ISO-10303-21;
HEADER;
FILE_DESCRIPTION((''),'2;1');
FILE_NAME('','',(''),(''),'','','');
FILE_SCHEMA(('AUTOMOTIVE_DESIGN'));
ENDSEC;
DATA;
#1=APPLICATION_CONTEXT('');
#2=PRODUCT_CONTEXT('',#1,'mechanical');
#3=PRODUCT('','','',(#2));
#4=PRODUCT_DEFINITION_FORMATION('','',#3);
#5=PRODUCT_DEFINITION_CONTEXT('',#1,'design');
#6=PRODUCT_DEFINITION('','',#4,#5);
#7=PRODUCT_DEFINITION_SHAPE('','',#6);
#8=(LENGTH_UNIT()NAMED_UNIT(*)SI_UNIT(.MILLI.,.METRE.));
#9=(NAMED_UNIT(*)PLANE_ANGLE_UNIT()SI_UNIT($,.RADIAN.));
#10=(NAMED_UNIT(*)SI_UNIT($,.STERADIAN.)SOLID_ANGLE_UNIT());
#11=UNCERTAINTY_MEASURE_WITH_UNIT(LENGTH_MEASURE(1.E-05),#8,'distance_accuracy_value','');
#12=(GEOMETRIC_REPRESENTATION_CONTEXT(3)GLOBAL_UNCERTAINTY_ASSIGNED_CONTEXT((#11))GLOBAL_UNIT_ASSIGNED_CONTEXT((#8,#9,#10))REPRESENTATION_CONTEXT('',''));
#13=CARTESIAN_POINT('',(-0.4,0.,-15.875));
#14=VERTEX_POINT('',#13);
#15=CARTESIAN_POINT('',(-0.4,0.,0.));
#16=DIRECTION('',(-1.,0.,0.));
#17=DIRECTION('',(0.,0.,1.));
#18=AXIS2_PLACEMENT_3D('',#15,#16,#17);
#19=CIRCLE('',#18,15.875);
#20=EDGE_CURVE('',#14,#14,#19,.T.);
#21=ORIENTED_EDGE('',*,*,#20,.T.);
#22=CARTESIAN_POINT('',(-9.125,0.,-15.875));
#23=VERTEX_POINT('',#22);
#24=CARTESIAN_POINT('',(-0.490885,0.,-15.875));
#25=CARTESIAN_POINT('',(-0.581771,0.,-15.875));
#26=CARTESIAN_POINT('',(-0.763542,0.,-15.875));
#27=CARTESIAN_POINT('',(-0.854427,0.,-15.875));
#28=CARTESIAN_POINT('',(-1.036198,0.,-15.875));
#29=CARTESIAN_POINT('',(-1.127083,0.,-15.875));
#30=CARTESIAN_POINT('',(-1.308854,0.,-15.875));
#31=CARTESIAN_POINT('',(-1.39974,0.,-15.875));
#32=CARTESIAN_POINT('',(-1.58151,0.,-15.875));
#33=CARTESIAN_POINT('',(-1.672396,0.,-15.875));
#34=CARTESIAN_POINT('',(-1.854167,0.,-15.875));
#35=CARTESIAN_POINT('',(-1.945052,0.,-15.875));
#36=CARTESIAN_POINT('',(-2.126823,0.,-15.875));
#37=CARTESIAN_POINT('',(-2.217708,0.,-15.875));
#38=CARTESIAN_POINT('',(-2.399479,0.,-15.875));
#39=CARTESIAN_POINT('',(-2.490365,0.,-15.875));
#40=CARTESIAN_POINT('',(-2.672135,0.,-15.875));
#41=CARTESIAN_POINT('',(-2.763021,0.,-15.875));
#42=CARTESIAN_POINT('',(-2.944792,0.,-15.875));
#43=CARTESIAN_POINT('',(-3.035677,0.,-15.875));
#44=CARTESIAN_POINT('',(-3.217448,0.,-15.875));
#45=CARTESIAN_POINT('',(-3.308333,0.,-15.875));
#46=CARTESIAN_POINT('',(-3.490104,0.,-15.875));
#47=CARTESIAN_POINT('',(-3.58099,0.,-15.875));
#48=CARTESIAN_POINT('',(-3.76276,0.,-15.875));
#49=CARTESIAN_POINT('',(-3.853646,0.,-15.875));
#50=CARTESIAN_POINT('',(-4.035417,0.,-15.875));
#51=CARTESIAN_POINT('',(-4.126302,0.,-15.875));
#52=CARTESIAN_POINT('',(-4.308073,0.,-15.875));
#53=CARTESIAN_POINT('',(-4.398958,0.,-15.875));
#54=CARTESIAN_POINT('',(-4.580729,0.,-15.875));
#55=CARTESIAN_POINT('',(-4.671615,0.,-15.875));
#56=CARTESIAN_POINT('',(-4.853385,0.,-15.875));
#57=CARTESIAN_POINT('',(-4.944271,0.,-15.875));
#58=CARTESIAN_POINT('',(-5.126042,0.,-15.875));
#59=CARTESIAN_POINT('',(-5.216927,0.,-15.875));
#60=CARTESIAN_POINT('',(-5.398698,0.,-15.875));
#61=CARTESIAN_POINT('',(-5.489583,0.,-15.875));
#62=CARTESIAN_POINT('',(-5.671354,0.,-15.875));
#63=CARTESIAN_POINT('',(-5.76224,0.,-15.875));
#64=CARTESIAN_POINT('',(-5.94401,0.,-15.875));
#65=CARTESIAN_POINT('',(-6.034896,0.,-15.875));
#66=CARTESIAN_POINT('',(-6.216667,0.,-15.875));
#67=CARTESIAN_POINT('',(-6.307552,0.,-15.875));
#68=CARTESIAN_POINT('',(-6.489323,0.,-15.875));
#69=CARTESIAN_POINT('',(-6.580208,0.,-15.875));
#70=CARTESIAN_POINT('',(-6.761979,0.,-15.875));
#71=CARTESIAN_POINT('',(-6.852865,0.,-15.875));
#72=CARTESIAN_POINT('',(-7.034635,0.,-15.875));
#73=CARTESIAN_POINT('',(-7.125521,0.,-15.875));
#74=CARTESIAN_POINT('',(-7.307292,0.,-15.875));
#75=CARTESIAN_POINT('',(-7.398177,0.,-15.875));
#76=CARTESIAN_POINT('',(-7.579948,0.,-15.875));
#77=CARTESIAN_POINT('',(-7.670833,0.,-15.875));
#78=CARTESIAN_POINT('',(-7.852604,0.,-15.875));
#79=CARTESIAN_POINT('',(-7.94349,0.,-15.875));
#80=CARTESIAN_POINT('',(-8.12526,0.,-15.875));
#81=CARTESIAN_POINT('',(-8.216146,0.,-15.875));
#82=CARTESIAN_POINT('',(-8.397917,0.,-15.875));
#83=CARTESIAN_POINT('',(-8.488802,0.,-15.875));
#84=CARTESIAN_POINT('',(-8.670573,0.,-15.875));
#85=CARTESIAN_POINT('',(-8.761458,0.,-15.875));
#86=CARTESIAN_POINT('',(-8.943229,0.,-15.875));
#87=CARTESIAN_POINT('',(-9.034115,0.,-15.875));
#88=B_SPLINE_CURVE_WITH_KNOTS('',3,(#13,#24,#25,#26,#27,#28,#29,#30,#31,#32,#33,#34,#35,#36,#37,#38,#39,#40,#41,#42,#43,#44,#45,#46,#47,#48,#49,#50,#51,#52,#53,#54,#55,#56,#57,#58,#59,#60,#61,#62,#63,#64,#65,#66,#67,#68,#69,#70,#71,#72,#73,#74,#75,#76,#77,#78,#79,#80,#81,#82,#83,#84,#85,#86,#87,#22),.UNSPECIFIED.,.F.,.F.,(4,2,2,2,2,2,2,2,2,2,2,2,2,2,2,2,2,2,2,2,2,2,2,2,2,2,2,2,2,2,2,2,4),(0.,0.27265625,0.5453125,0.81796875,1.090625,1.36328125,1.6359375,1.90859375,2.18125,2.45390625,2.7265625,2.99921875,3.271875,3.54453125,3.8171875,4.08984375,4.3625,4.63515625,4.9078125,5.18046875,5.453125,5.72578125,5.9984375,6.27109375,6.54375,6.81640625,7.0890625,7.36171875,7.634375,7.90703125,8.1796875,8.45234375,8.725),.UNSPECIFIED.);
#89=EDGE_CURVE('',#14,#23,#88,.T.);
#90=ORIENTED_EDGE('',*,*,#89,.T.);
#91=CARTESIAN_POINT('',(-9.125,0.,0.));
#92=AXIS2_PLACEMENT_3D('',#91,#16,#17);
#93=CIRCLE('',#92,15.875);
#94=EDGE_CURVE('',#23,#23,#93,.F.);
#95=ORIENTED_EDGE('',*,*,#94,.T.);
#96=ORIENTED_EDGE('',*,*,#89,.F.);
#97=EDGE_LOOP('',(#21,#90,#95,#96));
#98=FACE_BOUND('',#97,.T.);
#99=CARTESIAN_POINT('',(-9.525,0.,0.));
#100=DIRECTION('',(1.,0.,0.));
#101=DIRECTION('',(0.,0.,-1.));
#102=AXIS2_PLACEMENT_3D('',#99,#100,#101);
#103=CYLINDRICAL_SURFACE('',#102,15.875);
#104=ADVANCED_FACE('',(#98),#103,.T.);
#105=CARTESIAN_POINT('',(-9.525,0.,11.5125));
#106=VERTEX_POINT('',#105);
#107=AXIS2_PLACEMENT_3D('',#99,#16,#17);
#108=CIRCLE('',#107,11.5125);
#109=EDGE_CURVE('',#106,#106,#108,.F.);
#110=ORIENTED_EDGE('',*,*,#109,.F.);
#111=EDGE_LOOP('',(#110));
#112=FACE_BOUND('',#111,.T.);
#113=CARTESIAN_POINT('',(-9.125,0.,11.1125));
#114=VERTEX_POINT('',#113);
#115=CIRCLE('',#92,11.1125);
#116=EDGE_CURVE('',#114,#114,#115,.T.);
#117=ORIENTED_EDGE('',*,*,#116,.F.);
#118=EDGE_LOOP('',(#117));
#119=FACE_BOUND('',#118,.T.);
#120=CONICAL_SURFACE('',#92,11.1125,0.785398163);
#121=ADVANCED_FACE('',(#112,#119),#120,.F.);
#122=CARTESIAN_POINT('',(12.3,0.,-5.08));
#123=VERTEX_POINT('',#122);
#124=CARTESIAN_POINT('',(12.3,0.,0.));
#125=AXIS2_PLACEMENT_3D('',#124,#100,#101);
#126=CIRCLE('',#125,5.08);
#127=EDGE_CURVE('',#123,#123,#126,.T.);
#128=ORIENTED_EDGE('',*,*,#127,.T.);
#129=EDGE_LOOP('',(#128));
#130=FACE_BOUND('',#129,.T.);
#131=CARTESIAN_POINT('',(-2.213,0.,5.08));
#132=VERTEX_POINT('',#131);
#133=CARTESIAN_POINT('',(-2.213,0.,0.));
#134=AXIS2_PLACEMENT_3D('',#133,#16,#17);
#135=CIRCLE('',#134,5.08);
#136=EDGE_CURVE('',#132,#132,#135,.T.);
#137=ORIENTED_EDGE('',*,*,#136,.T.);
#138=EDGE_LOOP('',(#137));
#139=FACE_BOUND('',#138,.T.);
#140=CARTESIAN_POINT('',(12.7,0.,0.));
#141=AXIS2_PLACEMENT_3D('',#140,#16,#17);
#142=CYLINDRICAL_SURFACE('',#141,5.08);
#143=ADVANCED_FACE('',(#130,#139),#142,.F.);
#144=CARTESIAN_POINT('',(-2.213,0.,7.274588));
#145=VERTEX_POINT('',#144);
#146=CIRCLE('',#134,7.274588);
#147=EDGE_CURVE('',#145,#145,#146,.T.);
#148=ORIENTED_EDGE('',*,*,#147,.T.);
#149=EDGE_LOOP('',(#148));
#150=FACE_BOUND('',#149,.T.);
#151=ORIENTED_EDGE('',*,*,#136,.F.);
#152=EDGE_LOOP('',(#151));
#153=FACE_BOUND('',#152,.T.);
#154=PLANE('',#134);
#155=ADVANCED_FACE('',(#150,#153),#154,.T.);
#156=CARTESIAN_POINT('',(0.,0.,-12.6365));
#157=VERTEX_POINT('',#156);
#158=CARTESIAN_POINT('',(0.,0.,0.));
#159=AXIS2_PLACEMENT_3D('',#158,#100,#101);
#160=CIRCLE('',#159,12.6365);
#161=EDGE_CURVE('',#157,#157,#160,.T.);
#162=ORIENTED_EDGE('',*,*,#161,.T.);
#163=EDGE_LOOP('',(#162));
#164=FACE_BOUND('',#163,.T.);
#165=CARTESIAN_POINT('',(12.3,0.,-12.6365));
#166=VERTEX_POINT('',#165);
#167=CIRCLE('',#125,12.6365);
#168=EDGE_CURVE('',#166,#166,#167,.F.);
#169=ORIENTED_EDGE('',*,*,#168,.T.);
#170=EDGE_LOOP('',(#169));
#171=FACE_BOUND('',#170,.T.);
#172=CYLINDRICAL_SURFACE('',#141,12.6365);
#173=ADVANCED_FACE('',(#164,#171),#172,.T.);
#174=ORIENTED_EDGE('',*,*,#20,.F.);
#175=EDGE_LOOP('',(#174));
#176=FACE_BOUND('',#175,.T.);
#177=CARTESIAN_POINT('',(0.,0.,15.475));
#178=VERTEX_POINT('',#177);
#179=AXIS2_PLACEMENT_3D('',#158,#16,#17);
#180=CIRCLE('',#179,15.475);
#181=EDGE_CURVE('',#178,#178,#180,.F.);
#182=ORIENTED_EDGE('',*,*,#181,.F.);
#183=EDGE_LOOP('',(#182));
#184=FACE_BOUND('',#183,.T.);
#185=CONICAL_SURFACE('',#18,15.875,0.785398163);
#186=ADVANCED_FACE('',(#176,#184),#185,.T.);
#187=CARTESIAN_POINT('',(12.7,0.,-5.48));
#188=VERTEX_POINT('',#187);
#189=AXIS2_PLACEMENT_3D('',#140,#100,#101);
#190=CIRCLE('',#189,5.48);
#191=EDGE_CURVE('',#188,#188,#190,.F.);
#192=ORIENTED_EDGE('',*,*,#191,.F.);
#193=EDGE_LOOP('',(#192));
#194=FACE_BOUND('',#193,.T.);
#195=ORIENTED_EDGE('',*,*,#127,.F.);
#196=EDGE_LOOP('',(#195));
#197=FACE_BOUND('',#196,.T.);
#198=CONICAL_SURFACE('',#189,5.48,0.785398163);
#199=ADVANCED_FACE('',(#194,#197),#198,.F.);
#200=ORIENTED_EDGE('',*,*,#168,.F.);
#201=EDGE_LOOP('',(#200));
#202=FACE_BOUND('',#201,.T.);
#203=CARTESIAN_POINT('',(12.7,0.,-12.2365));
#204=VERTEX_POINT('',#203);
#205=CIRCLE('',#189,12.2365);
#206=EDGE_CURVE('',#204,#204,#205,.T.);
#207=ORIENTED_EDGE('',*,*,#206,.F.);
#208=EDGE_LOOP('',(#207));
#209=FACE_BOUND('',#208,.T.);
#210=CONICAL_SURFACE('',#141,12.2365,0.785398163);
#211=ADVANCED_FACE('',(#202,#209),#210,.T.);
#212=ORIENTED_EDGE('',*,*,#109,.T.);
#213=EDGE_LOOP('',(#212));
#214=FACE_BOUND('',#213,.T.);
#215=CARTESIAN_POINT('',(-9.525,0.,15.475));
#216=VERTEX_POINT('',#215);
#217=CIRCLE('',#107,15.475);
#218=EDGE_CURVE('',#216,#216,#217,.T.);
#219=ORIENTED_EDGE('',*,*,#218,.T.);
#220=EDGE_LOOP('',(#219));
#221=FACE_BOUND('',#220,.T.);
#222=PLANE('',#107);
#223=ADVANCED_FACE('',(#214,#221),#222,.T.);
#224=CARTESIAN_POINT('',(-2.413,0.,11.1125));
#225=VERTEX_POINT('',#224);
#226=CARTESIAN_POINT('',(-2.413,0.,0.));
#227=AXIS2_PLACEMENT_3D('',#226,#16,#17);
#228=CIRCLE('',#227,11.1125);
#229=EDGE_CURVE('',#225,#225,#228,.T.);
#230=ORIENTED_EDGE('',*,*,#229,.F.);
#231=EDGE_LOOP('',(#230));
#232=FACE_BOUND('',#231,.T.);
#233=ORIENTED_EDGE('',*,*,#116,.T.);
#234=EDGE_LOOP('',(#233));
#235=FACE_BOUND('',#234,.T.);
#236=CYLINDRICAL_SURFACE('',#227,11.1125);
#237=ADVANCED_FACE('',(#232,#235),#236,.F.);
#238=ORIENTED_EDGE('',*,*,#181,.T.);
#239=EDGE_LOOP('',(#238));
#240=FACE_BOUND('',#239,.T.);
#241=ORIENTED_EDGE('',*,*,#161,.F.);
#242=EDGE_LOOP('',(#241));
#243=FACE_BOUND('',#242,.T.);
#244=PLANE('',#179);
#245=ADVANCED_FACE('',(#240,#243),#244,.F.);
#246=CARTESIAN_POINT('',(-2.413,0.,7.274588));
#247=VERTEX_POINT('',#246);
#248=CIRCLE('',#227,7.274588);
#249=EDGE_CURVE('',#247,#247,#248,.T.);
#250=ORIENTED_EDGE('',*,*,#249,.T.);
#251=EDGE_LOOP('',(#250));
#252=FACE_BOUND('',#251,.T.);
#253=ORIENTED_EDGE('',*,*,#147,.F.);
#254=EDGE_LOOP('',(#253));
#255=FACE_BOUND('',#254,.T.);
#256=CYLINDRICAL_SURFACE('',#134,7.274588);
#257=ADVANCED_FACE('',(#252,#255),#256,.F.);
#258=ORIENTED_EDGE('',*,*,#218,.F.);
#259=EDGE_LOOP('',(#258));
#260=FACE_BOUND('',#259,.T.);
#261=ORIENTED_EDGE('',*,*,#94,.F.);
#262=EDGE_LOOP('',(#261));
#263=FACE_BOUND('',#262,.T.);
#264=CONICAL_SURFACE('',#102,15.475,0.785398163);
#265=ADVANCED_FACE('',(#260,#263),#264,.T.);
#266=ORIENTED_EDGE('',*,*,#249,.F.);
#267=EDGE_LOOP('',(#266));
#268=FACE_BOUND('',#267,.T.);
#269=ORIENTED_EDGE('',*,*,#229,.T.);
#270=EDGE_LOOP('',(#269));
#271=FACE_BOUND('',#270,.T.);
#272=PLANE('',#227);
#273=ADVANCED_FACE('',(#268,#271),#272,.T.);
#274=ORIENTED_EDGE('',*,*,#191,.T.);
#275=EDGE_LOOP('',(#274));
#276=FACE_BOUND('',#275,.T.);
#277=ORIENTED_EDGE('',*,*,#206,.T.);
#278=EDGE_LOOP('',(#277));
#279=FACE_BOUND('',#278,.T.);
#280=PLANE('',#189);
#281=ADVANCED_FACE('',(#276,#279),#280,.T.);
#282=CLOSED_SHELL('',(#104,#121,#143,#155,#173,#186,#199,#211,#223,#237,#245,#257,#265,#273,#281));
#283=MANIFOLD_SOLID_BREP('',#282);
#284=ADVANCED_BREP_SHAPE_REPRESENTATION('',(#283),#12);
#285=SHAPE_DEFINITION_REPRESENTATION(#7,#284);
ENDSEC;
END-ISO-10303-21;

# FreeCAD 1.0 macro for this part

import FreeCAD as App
import Part
import Sketcher
from FreeCAD import Vector
Q = App.Units.Quantity


def edges_at(feature, points):
    """Names of the edges that pass closest to the given points."""
    edges = feature.Shape.Edges
    near = lambda p: min(range(len(edges)), key=lambda i: edges[i].distToShape(Part.Vertex(*p))[0])
    return sorted({f"Edge{near(p) + 1}" for p in points})

doc = App.newDocument("Part")
body = doc.addObject("PartDesign::Body", "Body")

# Sketch on YZ plane
sketch1 = doc.addObject("Sketcher::SketchObject", "Sketch")
body.addObject(sketch1)
sketch1.AttachmentSupport = (doc.YZ_Plane, [""])
sketch1.MapMode = "FlatFace"
sketch1.addGeometry(Part.Circle(Vector(0, 0, 0), Vector(0, 0, 1), 13), False)
sketch1.addConstraint(Sketcher.Constraint("Coincident", 0, 3, -1, 1))
sketch1.addConstraint(Sketcher.Constraint("Diameter", 0, Q("0.995 in")))
pad1 = doc.addObject("PartDesign::Pad", "Pad")
body.addObject(pad1)
pad1.Profile = sketch1
pad1.Length = Q("0.5 in")

# Sketch on YZ plane
sketch2 = doc.addObject("Sketcher::SketchObject", "Sketch001")
body.addObject(sketch2)
sketch2.AttachmentSupport = (doc.YZ_Plane, [""])
sketch2.MapMode = "FlatFace"
sketch2.addGeometry(Part.Circle(Vector(0, 0, 0), Vector(0, 0, 1), 16), False)
sketch2.addConstraint(Sketcher.Constraint("Coincident", 0, 3, -1, 1))
sketch2.addConstraint(Sketcher.Constraint("Diameter", 0, Q("1.25 in")))
pad2 = doc.addObject("PartDesign::Pad", "Pad001")
body.addObject(pad2)
pad2.Profile = sketch2
pad2.Length = Q("0.375 in")
pad2.Reversed = True

# Sketch on YZ plane
sketch3 = doc.addObject("Sketcher::SketchObject", "Sketch002")
body.addObject(sketch3)
sketch3.AttachmentSupport = (doc.YZ_Plane, [""])
sketch3.MapMode = "FlatFace"
sketch3.AttachmentOffset = App.Placement(Vector(0, 0, -0.375 * 25.4), App.Rotation())
sketch3.addGeometry(Part.Circle(Vector(0, 0, 0), Vector(0, 0, 1), 11), False)
sketch3.addConstraint(Sketcher.Constraint("Coincident", 0, 3, -1, 1))
sketch3.addConstraint(Sketcher.Constraint("Diameter", 0, Q("0.875 in")))
pocket1 = doc.addObject("PartDesign::Pocket", "Pocket")
body.addObject(pocket1)
pocket1.Profile = sketch3
pocket1.Length = Q("0.28 in")
pocket1.Reversed = True

# Sketch on YZ plane
sketch4 = doc.addObject("Sketcher::SketchObject", "Sketch003")
body.addObject(sketch4)
sketch4.AttachmentSupport = (doc.YZ_Plane, [""])
sketch4.MapMode = "FlatFace"
sketch4.AttachmentOffset = App.Placement(Vector(0, 0, -0.095 * 25.4), App.Rotation())
sketch4.addGeometry(Part.Circle(Vector(0, 0, 0), Vector(0, 0, 1), 7), False)
sketch4.addConstraint(Sketcher.Constraint("Coincident", 0, 3, -1, 1))
sketch4.addConstraint(Sketcher.Constraint("Diameter", 0, Q("14.549176 mm")))
pocket2 = doc.addObject("PartDesign::Pocket", "Pocket001")
body.addObject(pocket2)
pocket2.Profile = sketch4
pocket2.Length = 0.2
pocket2.Reversed = True

# Sketch on YZ plane
sketch5 = doc.addObject("Sketcher::SketchObject", "Sketch004")
body.addObject(sketch5)
sketch5.AttachmentSupport = (doc.YZ_Plane, [""])
sketch5.MapMode = "FlatFace"
sketch5.AttachmentOffset = App.Placement(Vector(0, 0, -2.213), App.Rotation())
sketch5.addGeometry(Part.Circle(Vector(0, 0, 0), Vector(0, 0, 1), 5), False)
sketch5.addConstraint(Sketcher.Constraint("Coincident", 0, 3, -1, 1))
sketch5.addConstraint(Sketcher.Constraint("Diameter", 0, Q("0.4 in")))
pocket3 = doc.addObject("PartDesign::Pocket", "Pocket002")
body.addObject(pocket3)
pocket3.Profile = sketch5
pocket3.Type = "ThroughAll"
pocket3.Reversed = True
doc.recompute()

chamfer = doc.addObject("PartDesign::Chamfer", "Chamfer")
body.addObject(chamfer)
chamfer.Base = (pocket3, edges_at(pocket3, [
    (-9.525, 0, -11.113),
    (12.7, 0, -5.08),
    (12.7, 0, 12.636),
    (0, 0, 15.875),
    (-9.525, 0, 15.875),
]))
chamfer.Size = 0.4

doc.recompute()
